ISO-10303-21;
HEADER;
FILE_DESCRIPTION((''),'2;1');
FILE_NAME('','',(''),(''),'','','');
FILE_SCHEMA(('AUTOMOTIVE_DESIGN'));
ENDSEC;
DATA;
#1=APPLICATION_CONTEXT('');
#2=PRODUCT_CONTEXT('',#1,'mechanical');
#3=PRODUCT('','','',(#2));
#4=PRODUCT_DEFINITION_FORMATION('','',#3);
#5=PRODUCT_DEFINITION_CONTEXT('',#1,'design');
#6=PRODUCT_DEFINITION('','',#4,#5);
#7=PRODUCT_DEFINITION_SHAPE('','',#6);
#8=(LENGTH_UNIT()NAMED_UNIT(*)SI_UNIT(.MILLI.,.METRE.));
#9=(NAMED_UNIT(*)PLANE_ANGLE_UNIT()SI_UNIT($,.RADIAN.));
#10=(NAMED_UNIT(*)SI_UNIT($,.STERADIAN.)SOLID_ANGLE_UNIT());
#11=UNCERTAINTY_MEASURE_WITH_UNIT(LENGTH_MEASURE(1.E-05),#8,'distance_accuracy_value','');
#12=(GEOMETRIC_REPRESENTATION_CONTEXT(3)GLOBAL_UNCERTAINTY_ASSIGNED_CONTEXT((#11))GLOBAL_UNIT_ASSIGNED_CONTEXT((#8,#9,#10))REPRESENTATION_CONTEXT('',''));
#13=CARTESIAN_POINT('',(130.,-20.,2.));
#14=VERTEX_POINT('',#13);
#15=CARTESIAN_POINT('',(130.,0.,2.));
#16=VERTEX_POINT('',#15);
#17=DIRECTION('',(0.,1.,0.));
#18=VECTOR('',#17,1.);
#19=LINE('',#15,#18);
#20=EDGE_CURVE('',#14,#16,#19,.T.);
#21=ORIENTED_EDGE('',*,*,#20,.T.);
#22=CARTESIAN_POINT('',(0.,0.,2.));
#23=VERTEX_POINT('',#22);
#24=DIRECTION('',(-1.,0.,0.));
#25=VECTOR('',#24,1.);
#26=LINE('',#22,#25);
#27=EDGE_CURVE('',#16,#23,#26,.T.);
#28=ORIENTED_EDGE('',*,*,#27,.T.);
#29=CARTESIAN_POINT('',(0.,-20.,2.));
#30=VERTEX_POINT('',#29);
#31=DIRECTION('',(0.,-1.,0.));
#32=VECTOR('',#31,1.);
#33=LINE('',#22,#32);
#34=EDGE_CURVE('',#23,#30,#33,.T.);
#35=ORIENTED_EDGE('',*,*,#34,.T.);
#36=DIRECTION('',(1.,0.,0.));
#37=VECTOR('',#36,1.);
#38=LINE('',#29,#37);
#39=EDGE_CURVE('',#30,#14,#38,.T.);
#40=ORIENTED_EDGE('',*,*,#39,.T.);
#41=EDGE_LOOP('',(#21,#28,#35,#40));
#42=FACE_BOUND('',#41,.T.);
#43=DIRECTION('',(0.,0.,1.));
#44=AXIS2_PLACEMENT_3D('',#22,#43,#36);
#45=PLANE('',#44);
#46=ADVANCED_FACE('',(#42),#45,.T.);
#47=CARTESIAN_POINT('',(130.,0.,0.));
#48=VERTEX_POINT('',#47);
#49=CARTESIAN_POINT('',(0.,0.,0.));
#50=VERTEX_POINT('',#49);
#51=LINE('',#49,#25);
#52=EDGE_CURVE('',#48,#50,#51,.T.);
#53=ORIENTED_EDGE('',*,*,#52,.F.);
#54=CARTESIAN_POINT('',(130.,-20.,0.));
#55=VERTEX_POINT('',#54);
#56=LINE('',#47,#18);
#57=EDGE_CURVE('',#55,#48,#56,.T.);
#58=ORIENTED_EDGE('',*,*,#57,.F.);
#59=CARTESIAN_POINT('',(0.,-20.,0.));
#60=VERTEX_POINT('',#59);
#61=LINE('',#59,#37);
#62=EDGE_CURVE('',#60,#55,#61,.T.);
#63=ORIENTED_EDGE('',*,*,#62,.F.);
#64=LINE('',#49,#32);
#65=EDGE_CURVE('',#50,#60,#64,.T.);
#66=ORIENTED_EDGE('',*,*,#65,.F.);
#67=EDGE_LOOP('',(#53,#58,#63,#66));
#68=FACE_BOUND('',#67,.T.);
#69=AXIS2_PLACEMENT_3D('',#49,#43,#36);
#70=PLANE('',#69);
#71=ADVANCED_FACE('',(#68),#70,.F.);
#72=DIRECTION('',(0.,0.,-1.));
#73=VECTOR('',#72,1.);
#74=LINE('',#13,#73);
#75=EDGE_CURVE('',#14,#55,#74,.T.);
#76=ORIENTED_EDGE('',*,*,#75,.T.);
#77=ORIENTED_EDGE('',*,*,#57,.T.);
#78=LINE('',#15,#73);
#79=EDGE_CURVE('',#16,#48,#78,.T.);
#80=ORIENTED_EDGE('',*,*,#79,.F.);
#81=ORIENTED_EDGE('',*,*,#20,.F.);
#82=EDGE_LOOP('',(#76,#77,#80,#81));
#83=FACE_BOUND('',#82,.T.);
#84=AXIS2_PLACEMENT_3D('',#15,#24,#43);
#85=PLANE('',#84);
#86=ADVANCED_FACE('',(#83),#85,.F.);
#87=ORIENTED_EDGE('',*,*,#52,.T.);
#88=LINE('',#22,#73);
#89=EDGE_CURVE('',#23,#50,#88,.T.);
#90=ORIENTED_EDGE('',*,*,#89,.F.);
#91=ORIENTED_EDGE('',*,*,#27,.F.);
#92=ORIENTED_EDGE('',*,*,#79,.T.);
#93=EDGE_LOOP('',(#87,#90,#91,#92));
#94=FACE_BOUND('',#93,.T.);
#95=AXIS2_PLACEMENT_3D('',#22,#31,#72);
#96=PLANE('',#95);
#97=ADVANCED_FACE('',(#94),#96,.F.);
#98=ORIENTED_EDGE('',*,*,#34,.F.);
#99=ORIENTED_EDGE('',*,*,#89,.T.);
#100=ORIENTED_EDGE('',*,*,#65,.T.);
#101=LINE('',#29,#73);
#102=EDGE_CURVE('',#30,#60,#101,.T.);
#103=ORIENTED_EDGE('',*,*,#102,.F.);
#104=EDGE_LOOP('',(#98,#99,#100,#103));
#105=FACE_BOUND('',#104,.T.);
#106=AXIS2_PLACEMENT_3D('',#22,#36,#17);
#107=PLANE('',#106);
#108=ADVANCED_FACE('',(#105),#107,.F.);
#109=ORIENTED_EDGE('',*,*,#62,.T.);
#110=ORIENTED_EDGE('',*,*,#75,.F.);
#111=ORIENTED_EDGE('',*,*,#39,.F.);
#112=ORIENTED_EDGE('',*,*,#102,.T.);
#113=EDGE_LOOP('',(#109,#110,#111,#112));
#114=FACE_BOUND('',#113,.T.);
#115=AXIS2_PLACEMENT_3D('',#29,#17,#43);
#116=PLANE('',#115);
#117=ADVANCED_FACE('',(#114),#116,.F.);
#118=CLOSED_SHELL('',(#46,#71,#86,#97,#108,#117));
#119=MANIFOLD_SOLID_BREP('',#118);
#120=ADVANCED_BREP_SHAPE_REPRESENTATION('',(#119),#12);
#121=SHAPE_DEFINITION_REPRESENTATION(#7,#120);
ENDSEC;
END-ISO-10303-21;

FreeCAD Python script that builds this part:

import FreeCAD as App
import Part
import Sketcher
from FreeCAD import Vector
Q = App.Units.Quantity


def add_polygon(sketch, points):
    """Adds a closed chain of lines whose ends are joined by coincident constraints."""
    first, n = sketch.GeometryCount, len(points)
    for a, b in zip(points, points[1:] + points[:1]):
        sketch.addGeometry(Part.LineSegment(App.Vector(*a, 0), App.Vector(*b, 0)), False)
    for i in range(n):
        sketch.addConstraint(Sketcher.Constraint("Coincident", first + i, 2, first + (i + 1) % n, 1))

doc = App.newDocument("Part")
params = doc.addObject("Spreadsheet::Sheet", "Params")
for row, (alias, value) in enumerate([
    ("sketch1_width", "130 mm"),
    ("sketch1_height", "20 mm"),
    ("pad1_length", "2 mm"),
], start=1):
    params.set(f"A{row}", alias)
    params.set(f"B{row}", "=" + value)
    params.setAlias(f"B{row}", alias)

body = doc.addObject("PartDesign::Body", "Body")

# Sketch on XY plane
sketch1 = body.newObject("Sketcher::SketchObject", "Sketch")
sketch1.AttachmentSupport = (doc.getObject("XY_Plane"), [""])
sketch1.MapMode = "FlatFace"
add_polygon(sketch1, [(0, 0), (0, -20), (130, -20), (130, 0)])  # lines 0-3
sketch1.addConstraint([
    Sketcher.Constraint("Vertical", 0),
    Sketcher.Constraint("Horizontal", 1),
    Sketcher.Constraint("Vertical", 2),
    Sketcher.Constraint("Horizontal", 3),
    Sketcher.Constraint("Coincident", 3, 2, -1, 1),
    Sketcher.Constraint("DistanceX", 1, 1, 1, 2, Q("130 mm")),
    Sketcher.Constraint("DistanceY", 0, 2, 0, 1, Q("20 mm")),
])
sketch1.setExpression("Constraints[9]", "Params.sketch1_width")
sketch1.setExpression("Constraints[10]", "Params.sketch1_height")
pad1 = body.newObject("PartDesign::Pad", "Pad")
pad1.Profile = sketch1
pad1.setExpression("Length", "Params.pad1_length")

doc.recompute()
